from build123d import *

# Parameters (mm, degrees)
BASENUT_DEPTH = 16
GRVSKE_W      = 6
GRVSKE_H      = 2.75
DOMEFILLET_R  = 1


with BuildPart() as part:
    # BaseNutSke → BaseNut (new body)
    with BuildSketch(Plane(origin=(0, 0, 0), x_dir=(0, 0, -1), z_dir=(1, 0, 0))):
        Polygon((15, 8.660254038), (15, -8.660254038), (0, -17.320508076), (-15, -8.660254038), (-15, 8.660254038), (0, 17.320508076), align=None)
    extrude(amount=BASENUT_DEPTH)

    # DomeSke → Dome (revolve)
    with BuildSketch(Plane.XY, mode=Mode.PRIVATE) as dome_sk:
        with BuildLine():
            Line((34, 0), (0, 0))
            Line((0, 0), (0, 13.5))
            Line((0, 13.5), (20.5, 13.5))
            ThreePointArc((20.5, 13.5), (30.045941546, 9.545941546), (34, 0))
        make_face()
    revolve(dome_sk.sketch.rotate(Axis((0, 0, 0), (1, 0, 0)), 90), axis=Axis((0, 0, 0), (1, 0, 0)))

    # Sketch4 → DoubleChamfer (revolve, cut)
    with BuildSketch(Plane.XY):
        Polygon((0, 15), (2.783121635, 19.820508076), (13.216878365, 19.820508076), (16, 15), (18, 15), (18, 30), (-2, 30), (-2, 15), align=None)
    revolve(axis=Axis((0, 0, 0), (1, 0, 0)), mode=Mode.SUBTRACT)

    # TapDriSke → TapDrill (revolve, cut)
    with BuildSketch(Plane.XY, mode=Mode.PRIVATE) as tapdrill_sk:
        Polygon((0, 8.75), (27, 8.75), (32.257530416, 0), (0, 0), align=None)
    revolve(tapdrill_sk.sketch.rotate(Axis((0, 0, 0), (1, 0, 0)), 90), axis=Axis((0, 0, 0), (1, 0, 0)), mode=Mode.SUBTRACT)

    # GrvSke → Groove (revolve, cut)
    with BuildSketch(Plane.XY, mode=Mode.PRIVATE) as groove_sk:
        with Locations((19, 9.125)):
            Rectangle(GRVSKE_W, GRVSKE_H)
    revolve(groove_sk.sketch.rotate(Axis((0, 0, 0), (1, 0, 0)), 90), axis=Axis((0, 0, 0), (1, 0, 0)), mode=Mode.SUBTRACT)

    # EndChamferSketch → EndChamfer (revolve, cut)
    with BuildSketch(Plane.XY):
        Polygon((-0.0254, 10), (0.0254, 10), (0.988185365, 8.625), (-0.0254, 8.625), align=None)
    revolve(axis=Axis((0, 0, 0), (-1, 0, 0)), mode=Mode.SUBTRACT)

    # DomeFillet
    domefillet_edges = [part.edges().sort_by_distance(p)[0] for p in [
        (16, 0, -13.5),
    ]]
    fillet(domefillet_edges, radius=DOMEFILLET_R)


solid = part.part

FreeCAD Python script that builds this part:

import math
import FreeCAD as App
import Part
import Sketcher
from FreeCAD import Vector
Q = App.Units.Quantity


def edges_at(feature, points):
    """Names of the edges that pass closest to the given points."""
    edges = feature.Shape.Edges
    near = lambda p: min(range(len(edges)), key=lambda i: edges[i].distToShape(Part.Vertex(*p))[0])
    return sorted({f"Edge{near(p) + 1}" for p in points})


def add_polygon(sketch, points):
    """Adds a closed chain of lines whose ends are joined by coincident constraints."""
    first, n = sketch.GeometryCount, len(points)
    for a, b in zip(points, points[1:] + points[:1]):
        sketch.addGeometry(Part.LineSegment(App.Vector(*a, 0), App.Vector(*b, 0)), False)
    for i in range(n):
        sketch.addConstraint(Sketcher.Constraint("Coincident", first + i, 2, first + (i + 1) % n, 1))

doc = App.newDocument("Part")
params = doc.addObject("Spreadsheet::Sheet", "Params")
for row, (alias, value) in enumerate([
    ("pad1_length", "16 mm"),
    ("sketch2_radius", "13.5 mm"),
    ("sketch2_width", "34 mm"),
    ("revolution_angle", "360 deg"),
    ("sketch3_width", "2 mm"),
    ("sketch3_width2", "20 mm"),
    ("sketch3_height", "15 mm"),
    ("groove_angle", "360 deg"),
    ("sketch4_width", "27 mm"),
    ("sketch4_height", "8.75 mm"),
    ("groove2_angle", "360 deg"),
    ("sketch5_width", "6 mm"),
    ("sketch5_height", "2.75 mm"),
    ("groove3_angle", "360 deg"),
    ("groove4_angle", "360 deg"),
    ("fillet_radius", "1 mm"),
], start=1):
    params.set(f"A{row}", alias)
    params.set(f"B{row}", "=" + value)
    params.setAlias(f"B{row}", alias)

body = doc.addObject("PartDesign::Body", "Body")

# Sketch on YZ plane
sketch1 = body.newObject("Sketcher::SketchObject", "Sketch")
sketch1.AttachmentSupport = (doc.getObject("YZ_Plane"), [""])
sketch1.MapMode = "FlatFace"
add_polygon(sketch1, [(-9, -15), (9, -15), (17, 0), (9, 15), (-9, 15), (-17, 0)])  # lines 0-5
sketch1.addConstraint([
    Sketcher.Constraint("Horizontal", 0),
    Sketcher.Constraint("Horizontal", 3),
    Sketcher.Constraint("Symmetric", 0, 2, 3, 2, -1, 1),
    Sketcher.Constraint("Symmetric", 1, 2, 4, 2, -1, 1),
    Sketcher.Constraint("PointOnObject", 1, 2, -1),
    Sketcher.Constraint("Parallel", 2, 5),
    Sketcher.Constraint("Vertical", 0, 2, 2, 2),
    Sketcher.Constraint("Angle", 1, Q("60 deg")),
    Sketcher.Constraint("DistanceY", 0, 2, -1, 1, Q("15 mm")),
    Sketcher.Constraint("DistanceX", 0, 1, 0, 2, Q("17.320508 mm")),
])
pad1 = body.newObject("PartDesign::Pad", "Pad")
pad1.Profile = sketch1
pad1.setExpression("Length", "Params.pad1_length")

# Sketch on XY plane
sketch2 = body.newObject("Sketcher::SketchObject", "Sketch001")
sketch2.AttachmentSupport = (doc.getObject("XY_Plane"), [""])
sketch2.MapMode = "FlatFace"
sketch2.addGeometry([
    Part.LineSegment(Vector(0, 0, 0), Vector(34, 0, 0)),
    Part.ArcOfCircle(Part.Circle(Vector(20, 0, 0), Vector(0, 0, 1), 14), math.radians(0), math.radians(90)),
    Part.LineSegment(Vector(20, 14, 0), Vector(0, 14, 0)),
    Part.LineSegment(Vector(0, 14, 0), Vector(0, 0, 0)),
], False)
sketch2.addConstraint([
    Sketcher.Constraint("Coincident", 0, 2, 1, 1),
    Sketcher.Constraint("Tangent", 1, 2, 2, 1),
    Sketcher.Constraint("Coincident", 2, 2, 3, 1),
    Sketcher.Constraint("Coincident", 3, 2, 0, 1),
    Sketcher.Constraint("Horizontal", 0),
    Sketcher.Constraint("Horizontal", 2),
    Sketcher.Constraint("Vertical", 3),
    Sketcher.Constraint("Coincident", 3, 2, -1, 1),
    Sketcher.Constraint("PointOnObject", 1, 3, -1),
    Sketcher.Constraint("Radius", 1, Q("13.5 mm")),
    Sketcher.Constraint("DistanceX", 0, 1, 0, 2, Q("34 mm")),
])
sketch2.setExpression("Constraints[9]", "Params.sketch2_radius")
sketch2.setExpression("Constraints[10]", "Params.sketch2_width")
revolution = body.newObject("PartDesign::Revolution", "Revolution")
revolution.Profile = sketch2
revolution.ReferenceAxis = (sketch2, ["H_Axis"])
revolution.setExpression("Angle", "Params.revolution_angle")

# Sketch on XY plane
sketch3 = body.newObject("Sketcher::SketchObject", "Sketch002")
sketch3.AttachmentSupport = (doc.getObject("XY_Plane"), [""])
sketch3.MapMode = "FlatFace"
add_polygon(sketch3, [(0, 15), (2.8, 19.8), (13.2, 19.8), (16, 15), (18, 15), (18, 30), (-2, 30), (-2, 15)])  # lines 0-7
sketch3.addConstraint([
    Sketcher.Constraint("Horizontal", 1),
    Sketcher.Constraint("Horizontal", 3),
    Sketcher.Constraint("Vertical", 4),
    Sketcher.Constraint("Horizontal", 5),
    Sketcher.Constraint("Vertical", 6),
    Sketcher.Constraint("Horizontal", 7),
    Sketcher.Constraint("PointOnObject", 7, 2, -2),
    Sketcher.Constraint("Horizontal", 3, 2, 6, 2),
    Sketcher.Constraint("Equal", 3, 7),
    Sketcher.Constraint("Equal", 0, 2),
    Sketcher.Constraint("DistanceX", 3, 1, 3, 2, Q("2 mm")),
    Sketcher.Constraint("DistanceX", 5, 2, 5, 1, Q("20 mm")),
    Sketcher.Constraint("DistanceY", 4, 1, 4, 2, Q("15 mm")),
    Sketcher.Constraint("Angle", 0, Q("60 deg")),
    Sketcher.Constraint("DistanceY", -1, 1, 2, 2, Q("15 mm")),
    Sketcher.Constraint("DistanceX", 1, 1, 1, 2, Q("10.433757 mm")),
])
sketch3.setExpression("Constraints[18]", "Params.sketch3_width")
sketch3.setExpression("Constraints[19]", "Params.sketch3_width2")
sketch3.setExpression("Constraints[20]", "Params.sketch3_height")
groove = body.newObject("PartDesign::Groove", "Groove")
groove.Profile = sketch3
groove.ReferenceAxis = (sketch3, ["H_Axis"])
groove.setExpression("Angle", "Params.groove_angle")

# Sketch on XY plane
sketch4 = body.newObject("Sketcher::SketchObject", "Sketch003")
sketch4.AttachmentSupport = (doc.getObject("XY_Plane"), [""])
sketch4.MapMode = "FlatFace"
add_polygon(sketch4, [(27, 9), (0, 9), (0, 0), (32, 0)])  # lines 0-3
sketch4.addConstraint([
    Sketcher.Constraint("Horizontal", 0),
    Sketcher.Constraint("Vertical", 1),
    Sketcher.Constraint("Horizontal", 2),
    Sketcher.Constraint("Coincident", 1, 2, -1, 1),
    Sketcher.Constraint("DistanceX", 0, 2, 0, 1, Q("27 mm")),
    Sketcher.Constraint("Angle", 3, Q("121 deg")),
    Sketcher.Constraint("DistanceY", 1, 2, 1, 1, Q("8.75 mm")),
])
sketch4.setExpression("Constraints[8]", "Params.sketch4_width")
sketch4.setExpression("Constraints[10]", "Params.sketch4_height")
groove2 = body.newObject("PartDesign::Groove", "Groove001")
groove2.Profile = sketch4
groove2.ReferenceAxis = (sketch4, ["H_Axis"])
groove2.setExpression("Angle", "Params.groove2_angle")

# Sketch on XY plane
sketch5 = body.newObject("Sketcher::SketchObject", "Sketch004")
sketch5.AttachmentSupport = (doc.getObject("XY_Plane"), [""])
sketch5.MapMode = "FlatFace"
add_polygon(sketch5, [(16, 10.5), (16, 7.8), (22, 7.8), (22, 10.5)])  # lines 0-3
sketch5.addConstraint([
    Sketcher.Constraint("Vertical", 0),
    Sketcher.Constraint("Horizontal", 1),
    Sketcher.Constraint("Vertical", 2),
    Sketcher.Constraint("Horizontal", 3),
    Sketcher.Constraint("DistanceX", 1, 1, 1, 2, Q("6 mm")),
    Sketcher.Constraint("DistanceX", -1, 1, 0, 2, Q("16 mm")),
    Sketcher.Constraint("DistanceY", 0, 2, 0, 1, Q("2.75 mm")),
    Sketcher.Constraint("DistanceY", -1, 1, 2, 2, Q("10.5 mm")),
])
sketch5.setExpression("Constraints[8]", "Params.sketch5_width")
sketch5.setExpression("Constraints[10]", "Params.sketch5_height")
groove3 = body.newObject("PartDesign::Groove", "Groove002")
groove3.Profile = sketch5
groove3.ReferenceAxis = (sketch5, ["H_Axis"])
groove3.setExpression("Angle", "Params.groove3_angle")

# Sketch on XY plane
sketch6 = body.newObject("Sketcher::SketchObject", "Sketch005")
sketch6.AttachmentSupport = (doc.getObject("XY_Plane"), [""])
sketch6.MapMode = "FlatFace"
add_polygon(sketch6, [(0.03, 10), (-0.03, 10), (-0.03, 8.62), (0.99, 8.62)])  # lines 0-3
sketch6.addConstraint([
    Sketcher.Constraint("Horizontal", 0),
    Sketcher.Constraint("Vertical", 1),
    Sketcher.Constraint("Horizontal", 2),
    Sketcher.Constraint("Angle", 3, Q("125 deg")),
    Sketcher.Constraint("DistanceY", -1, 1, 0, 2, Q("10 mm")),
    Sketcher.Constraint("DistanceY", 1, 2, 1, 1, Q("1.375 mm")),
    Sketcher.Constraint("DistanceX", 0, 2, 0, 1, Q("0.0508 mm")),
    Sketcher.Constraint("DistanceX", 0, 2, -1, 1, Q("0.0254 mm")),
])
groove4 = body.newObject("PartDesign::Groove", "Groove003")
groove4.Profile = sketch6
groove4.ReferenceAxis = (sketch6, ["H_Axis"])
groove4.setExpression("Angle", "Params.groove4_angle")
doc.recompute()

fillet = body.newObject("PartDesign::Fillet", "Fillet")
fillet.Base = (groove4, edges_at(groove4, [(16, 0, -13.5)]))
fillet.setExpression("Radius", "Params.fillet_radius")

doc.recompute()
